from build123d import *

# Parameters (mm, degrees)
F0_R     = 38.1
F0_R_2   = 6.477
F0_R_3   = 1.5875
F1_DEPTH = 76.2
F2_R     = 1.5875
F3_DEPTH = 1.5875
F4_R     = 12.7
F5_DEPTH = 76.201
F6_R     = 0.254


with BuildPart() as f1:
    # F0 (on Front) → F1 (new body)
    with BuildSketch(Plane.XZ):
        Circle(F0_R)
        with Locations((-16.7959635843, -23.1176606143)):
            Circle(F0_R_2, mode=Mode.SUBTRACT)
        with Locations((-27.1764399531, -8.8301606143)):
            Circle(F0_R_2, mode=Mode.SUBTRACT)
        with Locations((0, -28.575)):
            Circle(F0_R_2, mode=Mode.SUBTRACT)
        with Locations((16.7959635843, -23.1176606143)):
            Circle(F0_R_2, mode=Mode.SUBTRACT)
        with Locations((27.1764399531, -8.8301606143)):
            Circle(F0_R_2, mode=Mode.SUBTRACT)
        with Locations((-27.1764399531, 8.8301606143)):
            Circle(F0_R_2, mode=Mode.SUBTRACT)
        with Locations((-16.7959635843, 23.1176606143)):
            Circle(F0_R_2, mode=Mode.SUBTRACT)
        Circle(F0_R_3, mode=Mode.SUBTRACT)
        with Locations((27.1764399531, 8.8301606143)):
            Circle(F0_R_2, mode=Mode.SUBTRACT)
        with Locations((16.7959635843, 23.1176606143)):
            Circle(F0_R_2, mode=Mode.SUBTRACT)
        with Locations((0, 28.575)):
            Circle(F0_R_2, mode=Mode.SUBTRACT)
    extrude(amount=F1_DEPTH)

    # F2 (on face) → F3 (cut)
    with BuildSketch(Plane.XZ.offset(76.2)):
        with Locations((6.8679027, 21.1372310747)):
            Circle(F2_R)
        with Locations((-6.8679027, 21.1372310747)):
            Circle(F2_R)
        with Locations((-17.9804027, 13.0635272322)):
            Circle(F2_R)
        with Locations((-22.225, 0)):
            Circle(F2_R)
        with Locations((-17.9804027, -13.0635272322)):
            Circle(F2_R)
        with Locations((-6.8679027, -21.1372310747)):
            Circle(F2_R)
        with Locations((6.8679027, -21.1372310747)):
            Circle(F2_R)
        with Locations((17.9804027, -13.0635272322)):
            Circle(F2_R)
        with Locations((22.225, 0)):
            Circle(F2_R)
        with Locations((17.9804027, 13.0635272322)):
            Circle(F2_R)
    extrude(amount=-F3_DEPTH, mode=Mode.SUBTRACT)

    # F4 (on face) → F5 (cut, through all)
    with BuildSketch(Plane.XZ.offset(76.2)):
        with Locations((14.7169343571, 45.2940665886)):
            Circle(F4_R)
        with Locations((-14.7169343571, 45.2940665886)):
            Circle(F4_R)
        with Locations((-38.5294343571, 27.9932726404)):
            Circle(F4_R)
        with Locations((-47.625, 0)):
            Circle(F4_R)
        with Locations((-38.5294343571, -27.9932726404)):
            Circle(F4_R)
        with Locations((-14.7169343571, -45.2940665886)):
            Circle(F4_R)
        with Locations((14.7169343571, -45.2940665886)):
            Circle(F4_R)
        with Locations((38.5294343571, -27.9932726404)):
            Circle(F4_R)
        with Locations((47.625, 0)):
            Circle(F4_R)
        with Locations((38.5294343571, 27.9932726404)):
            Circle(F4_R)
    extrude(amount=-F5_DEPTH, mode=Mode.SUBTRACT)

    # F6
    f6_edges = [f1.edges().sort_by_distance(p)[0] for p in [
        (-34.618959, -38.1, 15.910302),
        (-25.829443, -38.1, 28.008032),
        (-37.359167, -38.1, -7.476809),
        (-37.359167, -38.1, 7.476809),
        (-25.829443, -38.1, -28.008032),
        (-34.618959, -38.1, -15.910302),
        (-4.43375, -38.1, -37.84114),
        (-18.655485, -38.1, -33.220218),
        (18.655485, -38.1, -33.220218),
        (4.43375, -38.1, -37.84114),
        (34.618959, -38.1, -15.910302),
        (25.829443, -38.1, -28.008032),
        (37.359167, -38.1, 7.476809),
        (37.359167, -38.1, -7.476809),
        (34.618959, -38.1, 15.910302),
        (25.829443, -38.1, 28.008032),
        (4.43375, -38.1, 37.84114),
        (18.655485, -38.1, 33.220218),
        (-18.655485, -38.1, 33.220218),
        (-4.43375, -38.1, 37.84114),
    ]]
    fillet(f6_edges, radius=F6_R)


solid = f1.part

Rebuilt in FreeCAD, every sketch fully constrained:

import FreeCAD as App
import Part
import Sketcher

V = App.Vector
Q = App.Units.Quantity


def edges_at(feature, points):
    """Names of the edges that pass closest to the given points."""
    edges = feature.Shape.Edges
    near = lambda p: min(range(len(edges)), key=lambda i: edges[i].distToShape(Part.Vertex(*p))[0])
    return sorted({f"Edge{near(p) + 1}" for p in points})

doc = App.newDocument("Part")
body = doc.addObject("PartDesign::Body", "Body")

# Sketch on XZ plane
sketch1 = body.newObject("Sketcher::SketchObject", "Sketch")
sketch1.AttachmentSupport = (doc.getObject("XZ_Plane"), [""])
sketch1.MapMode = "FlatFace"
sketch1.addGeometry([
    Part.Circle(V(0, 0, 0), V(0, 0, 1), 38.1),  # 0
    Part.Circle(V(-16.8, -23.1, 0), V(0, 0, 1), 6.5),  # 1
    Part.Circle(V(-27.2, -8.8, 0), V(0, 0, 1), 6.5),  # 2
    Part.Circle(V(0, -28.6, 0), V(0, 0, 1), 6.5),  # 3
    Part.Circle(V(16.8, -23.1, 0), V(0, 0, 1), 6.5),  # 4
    Part.Circle(V(27.2, -8.8, 0), V(0, 0, 1), 6.5),  # 5
    Part.Circle(V(-27.2, 8.8, 0), V(0, 0, 1), 6.5),  # 6
    Part.Circle(V(-16.8, 23.1, 0), V(0, 0, 1), 6.5),  # 7
    Part.Circle(V(0, 0, 0), V(0, 0, 1), 1.6),  # 8
    Part.Circle(V(27.2, 8.8, 0), V(0, 0, 1), 6.5),  # 9
    Part.Circle(V(16.8, 23.1, 0), V(0, 0, 1), 6.5),  # 10
    Part.Circle(V(0, 28.6, 0), V(0, 0, 1), 6.5),  # 11
], False)
sketch1.addConstraint([
    Sketcher.Constraint("Coincident", 0, 3, -1, 1),
    Sketcher.Constraint("Coincident", 8, 3, -1, 1),
    Sketcher.Constraint("Equal", 1, 2),
    Sketcher.Constraint("Equal", 2, 3),
    Sketcher.Constraint("Equal", 3, 4),
    Sketcher.Constraint("Equal", 4, 5),
    Sketcher.Constraint("Equal", 5, 6),
    Sketcher.Constraint("Equal", 6, 7),
    Sketcher.Constraint("Equal", 7, 9),
    Sketcher.Constraint("Equal", 9, 10),
    Sketcher.Constraint("Equal", 10, 11),
    Sketcher.Constraint("Symmetric", 5, 3, 6, 3, -1, 1),
    Sketcher.Constraint("Symmetric", 4, 3, 7, 3, -1, 1),
    Sketcher.Constraint("Symmetric", 2, 3, 9, 3, -1, 1),
    Sketcher.Constraint("Symmetric", 1, 3, 10, 3, -1, 1),
    Sketcher.Constraint("Symmetric", 3, 3, 11, 3, -1, 1),
    Sketcher.Constraint("Symmetric", 1, 3, 4, 3, -2),
    Sketcher.Constraint("Symmetric", 2, 3, 5, 3, -2),
    Sketcher.Constraint("PointOnObject", 3, 3, -2),
    Sketcher.Constraint("Diameter", 0, Q("3 in")),
    Sketcher.Constraint("Diameter", 1, Q("0.51 in")),
    Sketcher.Constraint("Diameter", 8, Q("0.125 in")),
    Sketcher.Constraint("DistanceY", 3, 3, -1, 1, Q("1.125 in")),
    Sketcher.Constraint("DistanceY", 1, 3, 2, 3, Q("0.5625 in")),
    Sketcher.Constraint("DistanceY", 1, 3, -1, 1, Q("23.117661 mm")),
    Sketcher.Constraint("DistanceX", 2, 3, -1, 1, Q("27.17644 mm")),
    Sketcher.Constraint("DistanceX", 1, 3, -1, 1, Q("16.795964 mm")),
])
pad1 = body.newObject("PartDesign::Pad", "Pad")
pad1.Profile = sketch1
pad1.Length = Q("3 in")

# Sketch on XZ plane
sketch2 = body.newObject("Sketcher::SketchObject", "Sketch001")
sketch2.AttachmentSupport = (doc.getObject("XZ_Plane"), [""])
sketch2.MapMode = "FlatFace"
sketch2.AttachmentOffset = App.Placement(V(0, 0, 3 * 25.4), App.Rotation())
sketch2.addGeometry([
    Part.Circle(V(6.9, 21.1, 0), V(0, 0, 1), 1.6),  # 0
    Part.Circle(V(-6.9, 21.1, 0), V(0, 0, 1), 1.6),  # 1
    Part.Circle(V(-18, 13.1, 0), V(0, 0, 1), 1.6),  # 2
    Part.Circle(V(-22.2, 0, 0), V(0, 0, 1), 1.6),  # 3
    Part.Circle(V(-18, -13.1, 0), V(0, 0, 1), 1.6),  # 4
    Part.Circle(V(-6.9, -21.1, 0), V(0, 0, 1), 1.6),  # 5
    Part.Circle(V(6.9, -21.1, 0), V(0, 0, 1), 1.6),  # 6
    Part.Circle(V(18, -13.1, 0), V(0, 0, 1), 1.6),  # 7
    Part.Circle(V(22.2, 0, 0), V(0, 0, 1), 1.6),  # 8
    Part.Circle(V(18, 13.1, 0), V(0, 0, 1), 1.6),  # 9
], False)
sketch2.addConstraint([
    Sketcher.Constraint("Equal", 0, 1),
    Sketcher.Constraint("Equal", 1, 2),
    Sketcher.Constraint("Equal", 2, 3),
    Sketcher.Constraint("Equal", 3, 4),
    Sketcher.Constraint("Equal", 4, 5),
    Sketcher.Constraint("Equal", 5, 6),
    Sketcher.Constraint("Equal", 6, 7),
    Sketcher.Constraint("Equal", 7, 8),
    Sketcher.Constraint("Equal", 8, 9),
    Sketcher.Constraint("Symmetric", 0, 3, 5, 3, -1, 1),
    Sketcher.Constraint("Symmetric", 1, 3, 6, 3, -1, 1),
    Sketcher.Constraint("Symmetric", 2, 3, 7, 3, -1, 1),
    Sketcher.Constraint("Symmetric", 3, 3, 8, 3, -1, 1),
    Sketcher.Constraint("Symmetric", 4, 3, 9, 3, -1, 1),
    Sketcher.Constraint("Symmetric", 0, 3, 1, 3, -2),
    Sketcher.Constraint("Symmetric", 4, 3, 7, 3, -2),
    Sketcher.Constraint("PointOnObject", 3, 3, -1),
    Sketcher.Constraint("Diameter", 0, Q("0.125 in")),
    Sketcher.Constraint("DistanceX", 3, 3, -1, 1, Q("0.875 in")),
    Sketcher.Constraint("DistanceX", 2, 3, 1, 3, Q("0.4375 in")),
    Sketcher.Constraint("DistanceY", -1, 1, 0, 3, Q("21.137231 mm")),
    Sketcher.Constraint("DistanceY", 4, 3, 1, 3, Q("34.200758 mm")),
    Sketcher.Constraint("DistanceX", -1, 1, 0, 3, Q("6.867903 mm")),
])
pocket1 = body.newObject("PartDesign::Pocket", "Pocket")
pocket1.Profile = sketch2
pocket1.Length = Q("0.0625 in")

# Sketch on XZ plane
sketch3 = body.newObject("Sketcher::SketchObject", "Sketch002")
sketch3.AttachmentSupport = (doc.getObject("XZ_Plane"), [""])
sketch3.MapMode = "FlatFace"
sketch3.AttachmentOffset = App.Placement(V(0, 0, 3 * 25.4), App.Rotation())
sketch3.addGeometry([
    Part.Circle(V(15, 45, 0), V(0, 0, 1), 13),  # 0
    Part.Circle(V(-15, 45, 0), V(0, 0, 1), 13),  # 1
    Part.Circle(V(-39, 28, 0), V(0, 0, 1), 13),  # 2
    Part.Circle(V(-48, 0, 0), V(0, 0, 1), 13),  # 3
    Part.Circle(V(-39, -28, 0), V(0, 0, 1), 13),  # 4
    Part.Circle(V(-15, -45, 0), V(0, 0, 1), 13),  # 5
    Part.Circle(V(15, -45, 0), V(0, 0, 1), 13),  # 6
    Part.Circle(V(39, -28, 0), V(0, 0, 1), 13),  # 7
    Part.Circle(V(48, 0, 0), V(0, 0, 1), 13),  # 8
    Part.Circle(V(39, 28, 0), V(0, 0, 1), 13),  # 9
], False)
sketch3.addConstraint([
    Sketcher.Constraint("Equal", 0, 1),
    Sketcher.Constraint("Equal", 1, 2),
    Sketcher.Constraint("Equal", 2, 3),
    Sketcher.Constraint("Equal", 3, 4),
    Sketcher.Constraint("Equal", 4, 5),
    Sketcher.Constraint("Equal", 5, 6),
    Sketcher.Constraint("Equal", 6, 7),
    Sketcher.Constraint("Equal", 7, 8),
    Sketcher.Constraint("Equal", 8, 9),
    Sketcher.Constraint("Symmetric", 0, 3, 5, 3, -1, 1),
    Sketcher.Constraint("Symmetric", 1, 3, 6, 3, -1, 1),
    Sketcher.Constraint("Symmetric", 2, 3, 7, 3, -1, 1),
    Sketcher.Constraint("Symmetric", 3, 3, 8, 3, -1, 1),
    Sketcher.Constraint("Symmetric", 4, 3, 9, 3, -1, 1),
    Sketcher.Constraint("Symmetric", 0, 3, 1, 3, -2),
    Sketcher.Constraint("Symmetric", 4, 3, 7, 3, -2),
    Sketcher.Constraint("PointOnObject", 3, 3, -1),
    Sketcher.Constraint("Diameter", 0, Q("1 in")),
    Sketcher.Constraint("DistanceX", 3, 3, -1, 1, Q("1.875 in")),
    Sketcher.Constraint("DistanceX", 2, 3, 1, 3, Q("0.9375 in")),
    Sketcher.Constraint("DistanceX", 1, 3, 0, 3, Q("29.433869 mm")),
    Sketcher.Constraint("DistanceY", 4, 3, 1, 3, Q("73.287339 mm")),
    Sketcher.Constraint("DistanceY", -1, 1, 0, 3, Q("45.294067 mm")),
])
pocket2 = body.newObject("PartDesign::Pocket", "Pocket001")
pocket2.Profile = sketch3
pocket2.Type = "ThroughAll"
doc.recompute()

fillet = body.newObject("PartDesign::Fillet", "Fillet")
fillet.Base = (pocket2, edges_at(pocket2, [
    (-34.619, -38.1, 15.91),
    (-25.829, -38.1, 28.008),
    (-37.359, -38.1, -7.477),
    (-37.359, -38.1, 7.477),
    (-25.829, -38.1, -28.008),
    (-34.619, -38.1, -15.91),
    (-4.434, -38.1, -37.841),
    (-18.655, -38.1, -33.22),
    (18.655, -38.1, -33.22),
    (4.434, -38.1, -37.841),
    (34.619, -38.1, -15.91),
    (25.829, -38.1, -28.008),
    (37.359, -38.1, 7.477),
    (37.359, -38.1, -7.477),
    (34.619, -38.1, 15.91),
    (25.829, -38.1, 28.008),
    (4.434, -38.1, 37.841),
    (18.655, -38.1, 33.22),
    (-18.655, -38.1, 33.22),
    (-4.434, -38.1, 37.841),
]))
fillet.Radius = Q("0.01 in")

doc.recompute()
